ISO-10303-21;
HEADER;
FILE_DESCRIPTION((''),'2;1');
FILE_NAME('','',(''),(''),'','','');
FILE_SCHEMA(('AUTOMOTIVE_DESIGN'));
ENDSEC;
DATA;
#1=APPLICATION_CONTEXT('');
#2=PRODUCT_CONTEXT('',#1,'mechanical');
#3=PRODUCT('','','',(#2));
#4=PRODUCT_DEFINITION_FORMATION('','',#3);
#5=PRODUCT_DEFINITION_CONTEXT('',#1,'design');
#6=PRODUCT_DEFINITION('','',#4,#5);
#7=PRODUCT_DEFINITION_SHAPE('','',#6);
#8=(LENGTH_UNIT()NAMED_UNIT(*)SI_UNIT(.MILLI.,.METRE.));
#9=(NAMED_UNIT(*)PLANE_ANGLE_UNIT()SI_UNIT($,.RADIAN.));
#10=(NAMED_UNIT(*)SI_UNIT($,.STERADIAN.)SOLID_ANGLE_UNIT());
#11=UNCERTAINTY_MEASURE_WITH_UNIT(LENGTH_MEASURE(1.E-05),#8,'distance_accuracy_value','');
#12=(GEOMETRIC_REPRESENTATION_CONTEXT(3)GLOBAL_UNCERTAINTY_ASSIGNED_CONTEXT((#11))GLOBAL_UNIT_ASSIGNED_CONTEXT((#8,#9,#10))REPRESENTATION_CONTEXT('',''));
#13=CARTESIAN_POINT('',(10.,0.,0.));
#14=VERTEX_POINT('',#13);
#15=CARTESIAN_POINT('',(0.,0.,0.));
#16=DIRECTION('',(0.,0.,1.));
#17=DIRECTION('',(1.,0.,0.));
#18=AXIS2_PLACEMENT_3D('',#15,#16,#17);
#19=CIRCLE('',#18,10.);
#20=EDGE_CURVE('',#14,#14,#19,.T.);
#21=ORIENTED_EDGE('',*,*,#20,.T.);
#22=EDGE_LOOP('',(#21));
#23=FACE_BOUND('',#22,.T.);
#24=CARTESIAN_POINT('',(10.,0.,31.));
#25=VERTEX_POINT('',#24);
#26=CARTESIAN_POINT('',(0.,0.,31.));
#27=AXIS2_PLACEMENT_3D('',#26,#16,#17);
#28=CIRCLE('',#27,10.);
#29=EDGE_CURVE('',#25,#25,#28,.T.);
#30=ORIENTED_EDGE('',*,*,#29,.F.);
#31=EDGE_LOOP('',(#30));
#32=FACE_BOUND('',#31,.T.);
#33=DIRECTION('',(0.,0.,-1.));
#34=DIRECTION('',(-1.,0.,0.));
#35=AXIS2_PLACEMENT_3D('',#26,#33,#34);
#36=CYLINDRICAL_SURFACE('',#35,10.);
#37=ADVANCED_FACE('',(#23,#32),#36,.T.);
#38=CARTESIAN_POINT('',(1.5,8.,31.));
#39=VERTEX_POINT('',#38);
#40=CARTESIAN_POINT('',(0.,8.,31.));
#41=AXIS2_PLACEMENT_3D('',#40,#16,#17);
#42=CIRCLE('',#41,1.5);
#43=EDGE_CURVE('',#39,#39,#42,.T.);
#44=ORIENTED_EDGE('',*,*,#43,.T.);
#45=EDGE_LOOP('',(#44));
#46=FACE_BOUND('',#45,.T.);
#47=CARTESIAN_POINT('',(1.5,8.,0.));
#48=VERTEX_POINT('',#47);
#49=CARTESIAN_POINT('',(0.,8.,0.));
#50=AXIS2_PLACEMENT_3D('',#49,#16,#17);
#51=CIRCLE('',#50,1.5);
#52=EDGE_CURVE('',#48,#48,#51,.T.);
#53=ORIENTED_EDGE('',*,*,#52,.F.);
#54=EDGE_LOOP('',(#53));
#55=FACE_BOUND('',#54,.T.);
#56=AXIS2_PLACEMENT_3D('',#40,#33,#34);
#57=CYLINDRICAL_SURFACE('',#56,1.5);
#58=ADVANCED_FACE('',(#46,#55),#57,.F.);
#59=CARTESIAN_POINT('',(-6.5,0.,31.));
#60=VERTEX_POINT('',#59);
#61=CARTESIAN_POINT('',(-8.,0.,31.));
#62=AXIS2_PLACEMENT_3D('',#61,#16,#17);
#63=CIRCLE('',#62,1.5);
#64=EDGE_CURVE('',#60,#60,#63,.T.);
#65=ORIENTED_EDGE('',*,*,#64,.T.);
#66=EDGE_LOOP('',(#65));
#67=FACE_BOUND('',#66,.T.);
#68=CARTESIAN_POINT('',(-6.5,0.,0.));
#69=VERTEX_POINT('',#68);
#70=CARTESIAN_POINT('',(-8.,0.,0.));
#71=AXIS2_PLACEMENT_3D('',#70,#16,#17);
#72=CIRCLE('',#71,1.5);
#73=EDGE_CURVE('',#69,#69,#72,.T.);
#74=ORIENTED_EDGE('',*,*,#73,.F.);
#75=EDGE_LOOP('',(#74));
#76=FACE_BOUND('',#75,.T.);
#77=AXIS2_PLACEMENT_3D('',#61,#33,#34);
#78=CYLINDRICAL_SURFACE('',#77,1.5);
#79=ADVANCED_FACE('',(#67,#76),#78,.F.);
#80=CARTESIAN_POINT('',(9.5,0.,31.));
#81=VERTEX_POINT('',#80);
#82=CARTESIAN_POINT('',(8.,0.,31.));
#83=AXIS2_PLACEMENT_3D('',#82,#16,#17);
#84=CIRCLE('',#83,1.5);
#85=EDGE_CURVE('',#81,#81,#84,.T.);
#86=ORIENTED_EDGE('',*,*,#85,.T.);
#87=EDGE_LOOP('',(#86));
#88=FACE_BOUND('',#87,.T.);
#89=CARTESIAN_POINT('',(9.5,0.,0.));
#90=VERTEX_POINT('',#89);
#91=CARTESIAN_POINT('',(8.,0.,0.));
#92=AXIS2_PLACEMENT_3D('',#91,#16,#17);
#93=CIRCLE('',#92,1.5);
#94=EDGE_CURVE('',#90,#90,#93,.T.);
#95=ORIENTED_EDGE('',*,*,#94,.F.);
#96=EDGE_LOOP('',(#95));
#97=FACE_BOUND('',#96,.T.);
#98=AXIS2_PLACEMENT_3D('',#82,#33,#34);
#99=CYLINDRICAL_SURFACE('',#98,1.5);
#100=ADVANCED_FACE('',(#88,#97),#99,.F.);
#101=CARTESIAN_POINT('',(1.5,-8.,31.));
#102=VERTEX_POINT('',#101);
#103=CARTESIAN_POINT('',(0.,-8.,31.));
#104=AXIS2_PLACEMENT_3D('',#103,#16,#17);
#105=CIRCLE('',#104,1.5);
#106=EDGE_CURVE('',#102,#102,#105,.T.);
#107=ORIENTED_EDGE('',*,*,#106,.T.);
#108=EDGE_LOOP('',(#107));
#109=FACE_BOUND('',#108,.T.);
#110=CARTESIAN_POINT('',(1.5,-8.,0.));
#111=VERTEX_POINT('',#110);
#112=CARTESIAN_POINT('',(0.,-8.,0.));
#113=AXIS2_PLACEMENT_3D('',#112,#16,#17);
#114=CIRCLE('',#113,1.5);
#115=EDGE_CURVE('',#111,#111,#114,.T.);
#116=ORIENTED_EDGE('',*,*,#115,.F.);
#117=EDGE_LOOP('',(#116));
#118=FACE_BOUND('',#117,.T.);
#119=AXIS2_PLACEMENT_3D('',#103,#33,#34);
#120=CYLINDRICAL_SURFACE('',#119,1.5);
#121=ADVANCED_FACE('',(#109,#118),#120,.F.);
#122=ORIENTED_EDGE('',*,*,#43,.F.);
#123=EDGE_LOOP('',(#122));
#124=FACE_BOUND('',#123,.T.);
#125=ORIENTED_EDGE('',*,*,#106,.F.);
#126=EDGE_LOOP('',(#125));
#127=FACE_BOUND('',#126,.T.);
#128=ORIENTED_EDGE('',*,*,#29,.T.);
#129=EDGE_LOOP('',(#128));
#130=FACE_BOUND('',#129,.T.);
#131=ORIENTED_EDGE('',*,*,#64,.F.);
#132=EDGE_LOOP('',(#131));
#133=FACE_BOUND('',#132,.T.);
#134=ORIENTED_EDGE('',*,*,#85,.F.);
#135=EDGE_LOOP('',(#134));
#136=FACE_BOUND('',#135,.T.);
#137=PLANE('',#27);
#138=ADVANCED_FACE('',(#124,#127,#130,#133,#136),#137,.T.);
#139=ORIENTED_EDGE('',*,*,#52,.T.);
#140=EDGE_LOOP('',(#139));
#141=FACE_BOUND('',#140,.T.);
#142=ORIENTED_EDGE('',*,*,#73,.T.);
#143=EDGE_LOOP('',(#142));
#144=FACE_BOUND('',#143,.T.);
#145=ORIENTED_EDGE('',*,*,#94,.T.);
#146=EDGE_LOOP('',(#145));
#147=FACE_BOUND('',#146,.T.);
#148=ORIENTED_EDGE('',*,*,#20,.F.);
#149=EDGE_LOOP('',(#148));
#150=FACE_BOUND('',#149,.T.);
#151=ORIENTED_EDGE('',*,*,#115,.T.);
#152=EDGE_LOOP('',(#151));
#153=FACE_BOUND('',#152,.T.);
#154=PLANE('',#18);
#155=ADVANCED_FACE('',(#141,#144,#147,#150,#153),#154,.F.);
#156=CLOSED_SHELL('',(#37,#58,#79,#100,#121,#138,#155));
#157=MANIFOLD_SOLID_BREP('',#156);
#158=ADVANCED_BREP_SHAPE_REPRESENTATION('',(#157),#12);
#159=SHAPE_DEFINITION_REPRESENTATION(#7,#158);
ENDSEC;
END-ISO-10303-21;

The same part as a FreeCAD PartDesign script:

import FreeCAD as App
import Part
import Sketcher

V = App.Vector
Q = App.Units.Quantity

doc = App.newDocument("Part")
body = doc.addObject("PartDesign::Body", "Body")

# Sketch on XY plane
sketch1 = body.newObject("Sketcher::SketchObject", "Sketch")
sketch1.AttachmentSupport = (doc.getObject("XY_Plane"), [""])
sketch1.MapMode = "FlatFace"
sketch1.addGeometry([
    Part.Circle(V(0, 0, 0), V(0, 0, 1), 10),  # 0
    Part.Circle(V(0, -8, 0), V(0, 0, 1), 1.5),  # 1
    Part.Circle(V(-8, 0, 0), V(0, 0, 1), 1.5),  # 2
    Part.Circle(V(8, 0, 0), V(0, 0, 1), 1.5),  # 3
    Part.Circle(V(0, 8, 0), V(0, 0, 1), 1.5),  # 4
], False)
sketch1.addConstraint([
    Sketcher.Constraint("Coincident", 0, 3, -1, 1),
    Sketcher.Constraint("Equal", 1, 2),
    Sketcher.Constraint("Equal", 2, 3),
    Sketcher.Constraint("Equal", 3, 4),
    Sketcher.Constraint("Symmetric", 2, 3, 3, 3, -1, 1),
    Sketcher.Constraint("Symmetric", 1, 3, 4, 3, -1, 1),
    Sketcher.Constraint("PointOnObject", 1, 3, -2),
    Sketcher.Constraint("PointOnObject", 2, 3, -1),
    Sketcher.Constraint("Diameter", 0, Q("20 mm")),
    Sketcher.Constraint("Diameter", 1, Q("3 mm")),
    Sketcher.Constraint("DistanceY", 1, 3, -1, 1, Q("8 mm")),
    Sketcher.Constraint("DistanceX", 2, 3, -1, 1, Q("8 mm")),
])
pad1 = body.newObject("PartDesign::Pad", "Pad")
pad1.Profile = sketch1
pad1.Length = 31

doc.recompute()
